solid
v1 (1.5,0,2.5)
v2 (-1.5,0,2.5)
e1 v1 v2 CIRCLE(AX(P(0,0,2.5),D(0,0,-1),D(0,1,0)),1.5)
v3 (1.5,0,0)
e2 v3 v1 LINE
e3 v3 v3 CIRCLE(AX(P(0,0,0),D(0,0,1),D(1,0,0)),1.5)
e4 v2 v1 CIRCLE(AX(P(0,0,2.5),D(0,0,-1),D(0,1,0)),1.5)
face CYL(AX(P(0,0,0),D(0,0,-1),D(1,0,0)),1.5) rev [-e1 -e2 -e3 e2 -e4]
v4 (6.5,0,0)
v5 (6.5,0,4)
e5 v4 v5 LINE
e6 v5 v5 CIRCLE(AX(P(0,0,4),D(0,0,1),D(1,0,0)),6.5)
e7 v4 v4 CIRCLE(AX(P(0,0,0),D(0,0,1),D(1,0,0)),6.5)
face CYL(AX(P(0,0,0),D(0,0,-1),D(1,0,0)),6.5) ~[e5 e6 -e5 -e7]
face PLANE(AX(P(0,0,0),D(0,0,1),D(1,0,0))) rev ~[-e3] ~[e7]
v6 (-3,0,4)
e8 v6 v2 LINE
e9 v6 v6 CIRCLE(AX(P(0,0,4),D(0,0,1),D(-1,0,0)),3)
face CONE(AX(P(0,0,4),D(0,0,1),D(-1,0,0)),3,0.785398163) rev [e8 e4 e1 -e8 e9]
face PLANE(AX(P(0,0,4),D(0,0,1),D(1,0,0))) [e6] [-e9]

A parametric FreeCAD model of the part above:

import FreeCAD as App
import Part
import Sketcher
from FreeCAD import Vector

doc = App.newDocument("Part")
body = doc.addObject("PartDesign::Body", "Body")

# Sketch on XY plane
sketch1 = body.newObject("Sketcher::SketchObject", "Sketch")
sketch1.AttachmentSupport = (doc.getObject("XY_Plane"), [""])
sketch1.MapMode = "FlatFace"
sketch1.addGeometry([
    Part.Circle(Vector(0, 0, 0), Vector(0, 0, 1), 6.5),
    Part.Circle(Vector(0, 0, 0), Vector(0, 0, 1), 1.5),
], False)
sketch1.addConstraint([
    Sketcher.Constraint("Coincident", 0, 3, -1, 1),
    Sketcher.Constraint("Coincident", 1, 3, -1, 1),
    Sketcher.Constraint("Diameter", 0, 13.0),
    Sketcher.Constraint("Diameter", 1, 3.0),
])
pad1 = body.newObject("PartDesign::Pad", "Pad")
pad1.Profile = sketch1
pad1.Length = 4

# Sketch on XZ plane
sketch2 = body.newObject("Sketcher::SketchObject", "Sketch001")
sketch2.AttachmentSupport = (doc.getObject("XZ_Plane"), [""])
sketch2.MapMode = "FlatFace"
sketch2.addGeometry([
    Part.LineSegment(Vector(0, 1, 0), Vector(-3, 4, 0)),
    Part.LineSegment(Vector(-3, 4, 0), Vector(0, 4, 0)),
    Part.LineSegment(Vector(0, 4, 0), Vector(0, 1, 0)),
], False)
sketch2.addConstraint([
    Sketcher.Constraint("Coincident", 0, 2, 1, 1),
    Sketcher.Constraint("Coincident", 1, 2, 2, 1),
    Sketcher.Constraint("Coincident", 2, 2, 0, 1),
    Sketcher.Constraint("Horizontal", 1),
    Sketcher.Constraint("Vertical", 2),
    Sketcher.Constraint("PointOnObject", 1, 2, -2),
    Sketcher.Constraint("Equal", 1, 2),
    Sketcher.Constraint("DistanceX", 1, 1, 1, 2, 3.0),
    Sketcher.Constraint("DistanceY", -1, 1, 0, 2, 4.0),
])
groove = body.newObject("PartDesign::Groove", "Groove")
groove.Profile = sketch2
groove.ReferenceAxis = (sketch2, ["V_Axis"])
groove.Angle = 360

doc.recompute()
